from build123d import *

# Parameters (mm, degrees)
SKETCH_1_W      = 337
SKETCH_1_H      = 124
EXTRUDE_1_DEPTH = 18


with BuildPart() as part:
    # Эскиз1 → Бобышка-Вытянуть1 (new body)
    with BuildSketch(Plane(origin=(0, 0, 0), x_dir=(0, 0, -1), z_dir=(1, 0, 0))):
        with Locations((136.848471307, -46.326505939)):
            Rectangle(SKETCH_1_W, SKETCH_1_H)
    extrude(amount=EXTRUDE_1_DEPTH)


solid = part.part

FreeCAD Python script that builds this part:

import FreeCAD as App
import Part
import Sketcher

V = App.Vector
Q = App.Units.Quantity


def add_polygon(sketch, points):
    """Adds a closed chain of lines whose ends are joined by coincident constraints."""
    first, n = sketch.GeometryCount, len(points)
    for a, b in zip(points, points[1:] + points[:1]):
        sketch.addGeometry(Part.LineSegment(App.Vector(*a, 0), App.Vector(*b, 0)), False)
    for i in range(n):
        sketch.addConstraint(Sketcher.Constraint("Coincident", first + i, 2, first + (i + 1) % n, 1))

doc = App.newDocument("Part")
body = doc.addObject("PartDesign::Body", "Body")

# Sketch on YZ plane
sketch1 = body.newObject("Sketcher::SketchObject", "Sketch")
sketch1.AttachmentSupport = (doc.getObject("YZ_Plane"), [""])
sketch1.MapMode = "FlatFace"
add_polygon(sketch1, [(16, 32), (-108, 32), (-108, -305), (16, -305)])  # lines 0-3
sketch1.addConstraint([
    Sketcher.Constraint("Horizontal", 0),
    Sketcher.Constraint("Vertical", 1),
    Sketcher.Constraint("Horizontal", 2),
    Sketcher.Constraint("Vertical", 3),
    Sketcher.Constraint("DistanceX", 0, 2, 0, 1, Q("124 mm")),
    Sketcher.Constraint("DistanceY", 1, 2, 1, 1, Q("337 mm")),
    Sketcher.Constraint("DistanceY", -1, 1, 0, 2, Q("31.651529 mm")),
    Sketcher.Constraint("DistanceX", 0, 2, -1, 1, Q("108.326506 mm")),
])
pad1 = body.newObject("PartDesign::Pad", "Pad")
pad1.Profile = sketch1
pad1.Length = 18

doc.recompute()
